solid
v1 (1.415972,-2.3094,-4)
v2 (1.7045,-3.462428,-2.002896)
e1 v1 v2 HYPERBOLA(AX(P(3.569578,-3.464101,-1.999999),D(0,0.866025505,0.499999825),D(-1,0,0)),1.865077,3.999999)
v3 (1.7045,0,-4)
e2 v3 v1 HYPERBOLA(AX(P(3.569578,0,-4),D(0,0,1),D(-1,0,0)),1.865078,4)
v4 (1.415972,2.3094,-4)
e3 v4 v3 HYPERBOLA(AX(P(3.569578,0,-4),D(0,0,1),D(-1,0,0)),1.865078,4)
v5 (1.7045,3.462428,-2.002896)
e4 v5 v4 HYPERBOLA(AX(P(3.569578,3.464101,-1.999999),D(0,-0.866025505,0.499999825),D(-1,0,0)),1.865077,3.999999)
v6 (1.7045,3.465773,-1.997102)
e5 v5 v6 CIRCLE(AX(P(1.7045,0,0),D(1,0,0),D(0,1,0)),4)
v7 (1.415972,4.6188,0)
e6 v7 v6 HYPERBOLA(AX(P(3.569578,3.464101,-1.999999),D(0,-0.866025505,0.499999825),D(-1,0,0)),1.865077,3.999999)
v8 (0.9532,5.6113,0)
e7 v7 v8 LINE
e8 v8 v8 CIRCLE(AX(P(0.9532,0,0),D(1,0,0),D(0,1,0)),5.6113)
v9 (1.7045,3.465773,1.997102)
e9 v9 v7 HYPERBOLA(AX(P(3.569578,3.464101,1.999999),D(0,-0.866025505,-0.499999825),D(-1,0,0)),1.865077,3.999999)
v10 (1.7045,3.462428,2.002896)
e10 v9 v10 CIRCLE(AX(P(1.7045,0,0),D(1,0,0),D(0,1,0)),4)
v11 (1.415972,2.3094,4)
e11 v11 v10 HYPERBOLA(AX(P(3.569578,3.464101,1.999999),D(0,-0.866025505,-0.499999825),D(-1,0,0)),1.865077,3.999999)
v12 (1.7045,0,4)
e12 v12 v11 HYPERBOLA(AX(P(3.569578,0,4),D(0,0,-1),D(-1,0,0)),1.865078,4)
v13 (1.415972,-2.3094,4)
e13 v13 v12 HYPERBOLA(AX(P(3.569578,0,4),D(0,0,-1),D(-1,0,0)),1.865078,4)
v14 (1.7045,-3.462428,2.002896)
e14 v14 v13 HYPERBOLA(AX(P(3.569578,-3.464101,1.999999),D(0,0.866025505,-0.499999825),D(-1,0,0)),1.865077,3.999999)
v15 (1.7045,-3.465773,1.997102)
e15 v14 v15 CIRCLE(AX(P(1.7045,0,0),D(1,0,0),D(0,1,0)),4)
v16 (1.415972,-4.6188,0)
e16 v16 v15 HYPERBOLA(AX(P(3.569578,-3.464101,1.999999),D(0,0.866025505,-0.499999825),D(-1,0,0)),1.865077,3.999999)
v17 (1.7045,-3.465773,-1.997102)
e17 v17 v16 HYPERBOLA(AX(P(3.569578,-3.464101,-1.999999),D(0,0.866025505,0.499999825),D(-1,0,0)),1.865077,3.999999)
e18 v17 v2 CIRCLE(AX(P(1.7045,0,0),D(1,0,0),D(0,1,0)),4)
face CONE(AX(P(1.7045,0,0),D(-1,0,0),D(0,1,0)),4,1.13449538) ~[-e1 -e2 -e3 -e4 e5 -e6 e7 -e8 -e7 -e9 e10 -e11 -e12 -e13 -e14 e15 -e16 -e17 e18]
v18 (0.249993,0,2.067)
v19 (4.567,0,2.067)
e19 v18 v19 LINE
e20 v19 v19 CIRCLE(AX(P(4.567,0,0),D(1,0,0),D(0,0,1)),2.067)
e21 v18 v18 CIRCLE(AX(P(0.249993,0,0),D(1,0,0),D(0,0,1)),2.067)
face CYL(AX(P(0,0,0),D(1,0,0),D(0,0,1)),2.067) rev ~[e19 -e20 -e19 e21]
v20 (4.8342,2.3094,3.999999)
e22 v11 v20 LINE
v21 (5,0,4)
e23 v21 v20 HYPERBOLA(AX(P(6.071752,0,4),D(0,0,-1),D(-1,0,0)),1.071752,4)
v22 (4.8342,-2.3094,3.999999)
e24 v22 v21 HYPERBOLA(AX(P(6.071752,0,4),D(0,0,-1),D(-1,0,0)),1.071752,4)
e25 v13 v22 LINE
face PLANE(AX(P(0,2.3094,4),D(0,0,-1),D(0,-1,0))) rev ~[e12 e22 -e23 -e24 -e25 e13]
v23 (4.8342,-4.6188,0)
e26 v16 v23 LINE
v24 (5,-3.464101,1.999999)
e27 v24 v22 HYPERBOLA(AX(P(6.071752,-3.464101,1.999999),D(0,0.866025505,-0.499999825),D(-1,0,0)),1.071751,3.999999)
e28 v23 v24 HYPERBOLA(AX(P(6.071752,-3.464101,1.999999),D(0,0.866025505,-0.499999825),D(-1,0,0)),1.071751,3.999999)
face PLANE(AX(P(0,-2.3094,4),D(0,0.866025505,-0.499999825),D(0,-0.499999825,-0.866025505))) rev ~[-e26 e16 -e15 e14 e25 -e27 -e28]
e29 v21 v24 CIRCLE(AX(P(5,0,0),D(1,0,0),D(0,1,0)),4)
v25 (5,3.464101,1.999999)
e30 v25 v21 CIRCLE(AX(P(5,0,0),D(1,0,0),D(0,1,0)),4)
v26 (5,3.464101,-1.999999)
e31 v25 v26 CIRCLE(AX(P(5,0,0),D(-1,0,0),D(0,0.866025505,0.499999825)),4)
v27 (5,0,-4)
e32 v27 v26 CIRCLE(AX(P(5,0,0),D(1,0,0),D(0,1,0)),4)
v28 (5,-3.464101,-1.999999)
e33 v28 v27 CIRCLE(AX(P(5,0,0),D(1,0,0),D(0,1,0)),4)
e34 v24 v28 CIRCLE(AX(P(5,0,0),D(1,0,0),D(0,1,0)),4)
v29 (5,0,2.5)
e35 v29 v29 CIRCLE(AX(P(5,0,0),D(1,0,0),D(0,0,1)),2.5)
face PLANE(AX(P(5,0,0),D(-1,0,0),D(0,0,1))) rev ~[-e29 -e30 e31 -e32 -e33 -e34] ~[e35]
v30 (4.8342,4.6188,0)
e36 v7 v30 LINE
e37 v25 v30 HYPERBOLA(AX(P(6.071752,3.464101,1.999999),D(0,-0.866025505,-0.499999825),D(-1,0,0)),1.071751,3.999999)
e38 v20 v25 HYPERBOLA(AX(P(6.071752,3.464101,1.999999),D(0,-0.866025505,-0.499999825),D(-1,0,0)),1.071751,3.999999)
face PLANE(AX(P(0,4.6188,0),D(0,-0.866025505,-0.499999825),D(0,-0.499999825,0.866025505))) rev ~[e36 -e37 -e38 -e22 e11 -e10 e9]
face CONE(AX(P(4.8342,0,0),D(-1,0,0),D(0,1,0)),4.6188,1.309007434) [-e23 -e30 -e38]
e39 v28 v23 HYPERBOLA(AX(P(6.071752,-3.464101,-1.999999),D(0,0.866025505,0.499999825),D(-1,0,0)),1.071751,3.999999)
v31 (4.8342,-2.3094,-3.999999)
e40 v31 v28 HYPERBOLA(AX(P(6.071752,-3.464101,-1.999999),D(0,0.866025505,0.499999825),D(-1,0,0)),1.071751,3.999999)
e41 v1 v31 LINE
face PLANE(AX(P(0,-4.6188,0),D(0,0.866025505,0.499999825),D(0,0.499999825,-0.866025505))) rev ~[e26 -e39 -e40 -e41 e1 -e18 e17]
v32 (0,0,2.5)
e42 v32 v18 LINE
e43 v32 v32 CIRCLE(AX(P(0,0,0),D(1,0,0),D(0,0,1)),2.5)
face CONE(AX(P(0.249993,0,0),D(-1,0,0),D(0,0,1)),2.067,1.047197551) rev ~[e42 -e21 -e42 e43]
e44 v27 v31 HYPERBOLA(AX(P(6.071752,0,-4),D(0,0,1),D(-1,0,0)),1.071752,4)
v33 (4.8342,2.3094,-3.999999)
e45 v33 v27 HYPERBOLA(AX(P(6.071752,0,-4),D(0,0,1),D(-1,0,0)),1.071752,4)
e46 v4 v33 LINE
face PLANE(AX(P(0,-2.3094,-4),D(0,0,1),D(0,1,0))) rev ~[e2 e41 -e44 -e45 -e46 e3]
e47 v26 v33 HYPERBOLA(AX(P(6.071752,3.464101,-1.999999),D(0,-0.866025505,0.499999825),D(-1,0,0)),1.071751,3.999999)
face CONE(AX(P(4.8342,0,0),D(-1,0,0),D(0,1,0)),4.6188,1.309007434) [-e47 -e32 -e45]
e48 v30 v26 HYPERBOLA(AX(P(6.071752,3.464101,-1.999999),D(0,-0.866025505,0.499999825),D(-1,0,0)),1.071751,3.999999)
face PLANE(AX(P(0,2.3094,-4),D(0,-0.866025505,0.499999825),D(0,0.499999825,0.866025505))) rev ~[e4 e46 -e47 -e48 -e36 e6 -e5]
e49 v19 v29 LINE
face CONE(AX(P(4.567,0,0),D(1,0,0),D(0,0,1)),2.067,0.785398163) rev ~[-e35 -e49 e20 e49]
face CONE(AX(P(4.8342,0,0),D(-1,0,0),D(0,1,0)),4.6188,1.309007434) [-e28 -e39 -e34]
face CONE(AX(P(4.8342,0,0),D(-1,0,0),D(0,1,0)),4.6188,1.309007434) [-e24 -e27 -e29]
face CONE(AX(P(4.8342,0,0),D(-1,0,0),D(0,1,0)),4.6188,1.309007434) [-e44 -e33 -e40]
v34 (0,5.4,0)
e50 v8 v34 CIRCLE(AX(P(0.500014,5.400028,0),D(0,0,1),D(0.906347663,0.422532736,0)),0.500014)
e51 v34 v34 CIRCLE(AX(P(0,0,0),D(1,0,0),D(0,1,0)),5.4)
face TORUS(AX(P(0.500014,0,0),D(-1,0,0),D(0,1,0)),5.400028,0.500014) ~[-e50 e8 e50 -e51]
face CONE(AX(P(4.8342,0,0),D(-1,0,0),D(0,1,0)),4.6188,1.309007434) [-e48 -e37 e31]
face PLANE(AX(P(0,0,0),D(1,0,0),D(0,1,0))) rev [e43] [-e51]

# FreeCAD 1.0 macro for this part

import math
import FreeCAD as App
import Part
import Sketcher
Q = App.Units.Quantity


def edges_at(feature, points):
    """Names of the edges that pass closest to the given points."""
    edges = feature.Shape.Edges
    near = lambda p: min(range(len(edges)), key=lambda i: edges[i].distToShape(Part.Vertex(*p))[0])
    return sorted({f"Edge{near(p) + 1}" for p in points})

doc = App.newDocument("Part")
params = doc.addObject("Spreadsheet::Sheet", "Params")
for row, (alias, value) in enumerate([
    ("sketch1_radius", "0.5 mm"),
    ("sketch1_height", "4 mm"),
    ("sketch1_height2", "5.4 mm"),
    ("revolution_angle", "360 deg"),
    ("pad1_length", "5 mm"),
    ("groove_angle", "360 deg"),
    ("hole_diameter", "4.134 mm"),
    ("chamfer_size", "0.433 mm"),
    ("chamfer2_size", "0.433 mm"),
], start=1):
    params.set(f"A{row}", alias)
    params.set(f"B{row}", "=" + value)
    params.setAlias(f"B{row}", alias)

body = doc.addObject("PartDesign::Body", "Body")

# Sketch on XY plane
sketch1 = body.newObject("Sketcher::SketchObject", "Sketch")
sketch1.AttachmentSupport = (doc.getObject("XY_Plane"), [""])
sketch1.MapMode = "FlatFace"
sketch1.addGeometry([
    Part.LineSegment(App.Vector(0, 5.4, 0), App.Vector(0, 0, 0)),  # 0
    Part.LineSegment(App.Vector(0, 0, 0), App.Vector(1.7, 0, 0)),  # 1
    Part.LineSegment(App.Vector(1.7, 0, 0), App.Vector(1.7, 4, 0)),  # 2
    Part.LineSegment(App.Vector(1.7, 4, 0), App.Vector(1, 5.6, 0)),  # 3
    Part.ArcOfCircle(Part.Circle(App.Vector(0.5, 5.4, 0), App.Vector(0, 0, 1), 0.5), math.radians(25), math.radians(180)),  # 4
], False)
sketch1.addConstraint([
    Sketcher.Constraint("Coincident", 0, 2, 1, 1),
    Sketcher.Constraint("Coincident", 1, 2, 2, 1),
    Sketcher.Constraint("Coincident", 2, 2, 3, 1),
    Sketcher.Constraint("Tangent", 3, 2, 4, 1),
    Sketcher.Constraint("Tangent", 4, 2, 0, 1),
    Sketcher.Constraint("Vertical", 0),
    Sketcher.Constraint("Horizontal", 1),
    Sketcher.Constraint("Vertical", 2),
    Sketcher.Constraint("Coincident", 0, 2, -1, 1),
    Sketcher.Constraint("Radius", 4, Q("0.5 mm")),
    Sketcher.Constraint("DistanceY", 2, 1, 2, 2, Q("4 mm")),
    Sketcher.Constraint("DistanceY", 0, 2, 0, 1, Q("5.4 mm")),
    Sketcher.Constraint("DistanceX", 1, 1, 1, 2, Q("1.7045 mm")),
])
sketch1.setExpression("Constraints[9]", "Params.sketch1_radius")
sketch1.setExpression("Constraints[10]", "Params.sketch1_height")
sketch1.setExpression("Constraints[11]", "Params.sketch1_height2")
revolution = body.newObject("PartDesign::Revolution", "Revolution")
revolution.Profile = sketch1
revolution.ReferenceAxis = (sketch1, ["H_Axis"])
revolution.setExpression("Angle", "Params.revolution_angle")

# Sketch on YZ plane
sketch2 = body.newObject("Sketcher::SketchObject", "Sketch001")
sketch2.AttachmentSupport = (doc.getObject("YZ_Plane"), [""])
sketch2.MapMode = "FlatFace"
sketch2.addGeometry([
    Part.LineSegment(App.Vector(2.3, -4, 0), App.Vector(-2.3, -4, 0)),  # 0
    Part.LineSegment(App.Vector(-2.3, -4, 0), App.Vector(-4.6, 0, 0)),  # 1
    Part.LineSegment(App.Vector(-4.6, 0, 0), App.Vector(-2.3, 4, 0)),  # 2
    Part.LineSegment(App.Vector(-2.3, 4, 0), App.Vector(2.3, 4, 0)),  # 3
    Part.LineSegment(App.Vector(2.3, 4, 0), App.Vector(4.6, 0, 0)),  # 4
    Part.LineSegment(App.Vector(4.6, 0, 0), App.Vector(2.3, -4, 0)),  # 5
], False)
sketch2.addConstraint([
    Sketcher.Constraint("Coincident", 0, 2, 1, 1),
    Sketcher.Constraint("Coincident", 1, 2, 2, 1),
    Sketcher.Constraint("Coincident", 2, 2, 3, 1),
    Sketcher.Constraint("Coincident", 3, 2, 4, 1),
    Sketcher.Constraint("Coincident", 4, 2, 5, 1),
    Sketcher.Constraint("Coincident", 5, 2, 0, 1),
    Sketcher.Constraint("Horizontal", 0),
    Sketcher.Constraint("Horizontal", 3),
    Sketcher.Constraint("Symmetric", 0, 2, 3, 2, -1, 1),
    Sketcher.Constraint("Symmetric", 1, 2, 4, 2, -1, 1),
    Sketcher.Constraint("PointOnObject", 1, 2, -1),
    Sketcher.Constraint("Parallel", 2, 5),
    Sketcher.Constraint("Vertical", 0, 2, 2, 2),
    Sketcher.Constraint("Angle", 1, Q("120 deg")),
    Sketcher.Constraint("DistanceY", 0, 2, -1, 1, Q("4 mm")),
    Sketcher.Constraint("DistanceX", 1, 2, 4, 2, Q("9.2376 mm")),
])
pad1 = body.newObject("PartDesign::Pad", "Pad")
pad1.Profile = sketch2
pad1.setExpression("Length", "Params.pad1_length")

# Sketch on XY plane
sketch3 = body.newObject("Sketcher::SketchObject", "Sketch002")
sketch3.AttachmentSupport = (doc.getObject("XY_Plane"), [""])
sketch3.MapMode = "FlatFace"
sketch3.addGeometry([
    Part.LineSegment(App.Vector(5, 4.62, 0), App.Vector(4.83, 4.62, 0)),
    Part.LineSegment(App.Vector(4.83, 4.62, 0), App.Vector(5, 4, 0)),
    Part.LineSegment(App.Vector(5, 4, 0), App.Vector(5, 4.62, 0)),
], False)
sketch3.addConstraint([
    Sketcher.Constraint("Coincident", 0, 2, 1, 1),
    Sketcher.Constraint("Coincident", 1, 2, 2, 1),
    Sketcher.Constraint("Coincident", 2, 2, 0, 1),
    Sketcher.Constraint("Horizontal", 0),
    Sketcher.Constraint("Vertical", 2),
    Sketcher.Constraint("Angle", 1, Q("-75.0006 deg")),
    Sketcher.Constraint("DistanceX", -1, 1, 1, 2, Q("5 mm")),
    Sketcher.Constraint("DistanceY", -1, 1, 1, 2, Q("4 mm")),
    Sketcher.Constraint("DistanceX", 0, 2, 0, 1, Q("0.1658 mm")),
])
groove = body.newObject("PartDesign::Groove", "Groove")
groove.Profile = sketch3
groove.ReferenceAxis = (sketch3, ["H_Axis"])
groove.setExpression("Angle", "Params.groove_angle")

# Sketch on YZ plane
sketch4 = body.newObject("Sketcher::SketchObject", "Sketch003")
sketch4.AttachmentSupport = (doc.getObject("YZ_Plane"), [""])
sketch4.MapMode = "FlatFace"
sketch4.addGeometry(Part.Circle(App.Vector(0, 0, 0), App.Vector(0, 0, 1), 2.1), False)
sketch4.addConstraint([
    Sketcher.Constraint("Coincident", 0, 3, -1, 1),
    Sketcher.Constraint("Diameter", 0, Q("4.134 mm")),
])
doc.recompute()
hole = body.newObject("PartDesign::Hole", "Hole")
hole.Profile = sketch4
hole.ThreadType = "None"
hole.setExpression("Diameter", "Params.hole_diameter")
hole.DepthType = "ThroughAll"
hole.Reversed = True
doc.recompute()

chamfer = body.newObject("PartDesign::Chamfer", "Chamfer")
chamfer.Base = (hole, edges_at(hole, [(0, 0, -2.067)]))
chamfer.ChamferType = "Distance and Angle"
chamfer.setExpression("Size", "Params.chamfer_size")
chamfer.Angle = 30
doc.recompute()

chamfer2 = body.newObject("PartDesign::Chamfer", "Chamfer001")
chamfer2.Base = (chamfer, edges_at(chamfer, [(5, 0, -2.067)]))
chamfer2.setExpression("Size", "Params.chamfer2_size")

doc.recompute()
